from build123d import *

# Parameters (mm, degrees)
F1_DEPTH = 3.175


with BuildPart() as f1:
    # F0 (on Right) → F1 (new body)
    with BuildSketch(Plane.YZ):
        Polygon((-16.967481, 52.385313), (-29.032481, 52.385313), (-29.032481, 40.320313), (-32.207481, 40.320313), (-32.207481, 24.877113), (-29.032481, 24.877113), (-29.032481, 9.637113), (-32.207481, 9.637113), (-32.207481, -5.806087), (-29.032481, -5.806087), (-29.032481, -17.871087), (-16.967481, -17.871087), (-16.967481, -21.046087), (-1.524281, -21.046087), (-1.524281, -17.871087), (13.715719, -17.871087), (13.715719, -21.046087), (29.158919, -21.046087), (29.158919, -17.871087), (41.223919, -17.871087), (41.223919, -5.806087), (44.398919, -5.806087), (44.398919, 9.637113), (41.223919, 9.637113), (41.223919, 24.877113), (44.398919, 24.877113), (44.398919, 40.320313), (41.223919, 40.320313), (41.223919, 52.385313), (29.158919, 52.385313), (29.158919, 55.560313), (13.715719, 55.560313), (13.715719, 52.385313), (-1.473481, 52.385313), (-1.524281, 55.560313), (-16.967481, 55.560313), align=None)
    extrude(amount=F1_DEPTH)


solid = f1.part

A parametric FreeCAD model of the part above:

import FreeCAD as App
import Part
import Sketcher
Q = App.Units.Quantity


def add_polygon(sketch, points):
    """Adds a closed chain of lines whose ends are joined by coincident constraints."""
    first, n = sketch.GeometryCount, len(points)
    for a, b in zip(points, points[1:] + points[:1]):
        sketch.addGeometry(Part.LineSegment(App.Vector(*a, 0), App.Vector(*b, 0)), False)
    for i in range(n):
        sketch.addConstraint(Sketcher.Constraint("Coincident", first + i, 2, first + (i + 1) % n, 1))

doc = App.newDocument("Part")
body = doc.addObject("PartDesign::Body", "Body")

sketch1 = doc.addObject("Sketcher::SketchObject", "Sketch")
body.addObject(sketch1)
sketch1.AttachmentSupport = (doc.YZ_Plane, [""])
sketch1.MapMode = "FlatFace"
add_polygon(sketch1, [(-17, 52.4), (-29, 52.4), (-29, 40.3), (-32.2, 40.3), (-32.2, 24.9), (-29, 24.9), (-29, 9.6), (-32.2, 9.6), (-32.2, -5.8), (-29, -5.8), (-29, -17.9), (-17, -17.9), (-17, -21), (-1.5, -21), (-1.5, -17.9), (13.7, -17.9), (13.7, -21), (29.2, -21), (29.2, -17.9), (41.2, -17.9), (41.2, -5.8), (44.4, -5.8), (44.4, 9.6), (41.2, 9.6), (41.2, 24.9), (44.4, 24.9), (44.4, 40.3), (41.2, 40.3), (41.2, 52.4), (29.2, 52.4), (29.2, 55.6), (13.7, 55.6), (13.7, 52.4), (-1.5, 52.4), (-1.5, 55.6), (-17, 55.6)])
sketch1.addConstraint([
    Sketcher.Constraint("Horizontal", 0),
    Sketcher.Constraint("Vertical", 1),
    Sketcher.Constraint("Horizontal", 2),
    Sketcher.Constraint("Vertical", 3),
    Sketcher.Constraint("Horizontal", 4),
    Sketcher.Constraint("Vertical", 5),
    Sketcher.Constraint("Horizontal", 6),
    Sketcher.Constraint("Vertical", 7),
    Sketcher.Constraint("Horizontal", 8),
    Sketcher.Constraint("Vertical", 9),
    Sketcher.Constraint("Horizontal", 10),
    Sketcher.Constraint("Vertical", 11),
    Sketcher.Constraint("Horizontal", 12),
    Sketcher.Constraint("Vertical", 13),
    Sketcher.Constraint("Horizontal", 14),
    Sketcher.Constraint("Vertical", 15),
    Sketcher.Constraint("Horizontal", 16),
    Sketcher.Constraint("Vertical", 17),
    Sketcher.Constraint("Horizontal", 18),
    Sketcher.Constraint("Vertical", 19),
    Sketcher.Constraint("Horizontal", 20),
    Sketcher.Constraint("Vertical", 21),
    Sketcher.Constraint("Horizontal", 22),
    Sketcher.Constraint("Vertical", 23),
    Sketcher.Constraint("Horizontal", 24),
    Sketcher.Constraint("Vertical", 25),
    Sketcher.Constraint("Horizontal", 26),
    Sketcher.Constraint("Vertical", 27),
    Sketcher.Constraint("Horizontal", 28),
    Sketcher.Constraint("Vertical", 29),
    Sketcher.Constraint("Horizontal", 30),
    Sketcher.Constraint("Vertical", 31),
    Sketcher.Constraint("Horizontal", 32),
    Sketcher.Constraint("Horizontal", 34),
    Sketcher.Constraint("Vertical", 35),
    Sketcher.Constraint("Horizontal", 10, 2, 13, 2),
    Sketcher.Constraint("Horizontal", 12, 2, 15, 2),
    Sketcher.Constraint("Horizontal", 14, 2, 17, 2),
    Sketcher.Constraint("Horizontal", 8, 2, 19, 2),
    Sketcher.Constraint("Horizontal", 6, 2, 21, 2),
    Sketcher.Constraint("Horizontal", 4, 2, 23, 2),
    Sketcher.Constraint("Horizontal", 2, 2, 25, 2),
    Sketcher.Constraint("Horizontal", 0, 2, 27, 2),
    Sketcher.Constraint("Horizontal", 28, 2, 31, 2),
    Sketcher.Constraint("Horizontal", 30, 2, 33, 2),
    Sketcher.Constraint("Vertical", 1, 2, 4, 2),
    Sketcher.Constraint("Vertical", 3, 2, 6, 2),
    Sketcher.Constraint("Vertical", 5, 2, 8, 2),
    Sketcher.Constraint("Vertical", 19, 2, 22, 2),
    Sketcher.Constraint("Vertical", 21, 2, 24, 2),
    Sketcher.Constraint("Vertical", 23, 2, 26, 2),
    Sketcher.Constraint("Vertical", 17, 2, 28, 2),
    Sketcher.Constraint("Vertical", 15, 2, 30, 2),
    Sketcher.Constraint("Vertical", 13, 2, 33, 2),
    Sketcher.Constraint("Vertical", 11, 2, 34, 2),
    Sketcher.Constraint("Equal", 12, 16),
    Sketcher.Constraint("Equal", 10, 18),
    Sketcher.Constraint("Equal", 8, 20),
    Sketcher.Constraint("Equal", 28, 1),
    Sketcher.Constraint("Equal", 34, 3),
    Sketcher.Constraint("Equal", 14, 5),
    Sketcher.Constraint("Equal", 3, 7),
    Sketcher.Constraint("Equal", 1, 9),
    Sketcher.Constraint("Equal", 26, 11),
    Sketcher.Constraint("Equal", 17, 29),
    Sketcher.Constraint("DistanceX", 14, 1, 14, 2, Q("0.6 in")),
    Sketcher.Constraint("DistanceX", 7, 2, 10, 2, Q("0.6 in")),
    Sketcher.Constraint("DistanceX", 0, 2, 0, 1, Q("0.475 in")),
    Sketcher.Constraint("DistanceX", 12, 1, 12, 2, Q("0.608 in")),
    Sketcher.Constraint("DistanceX", 32, 2, 32, 1, Q("0.598 in")),
    Sketcher.Constraint("DistanceX", 0, 2, -1, 1, 29.032481),
    Sketcher.Constraint("DistanceY", -1, 1, 0, 2, 52.385313),
])
pad1 = doc.addObject("PartDesign::Pad", "Pad")
body.addObject(pad1)
pad1.Profile = sketch1
pad1.Length = Q("0.125 in")

doc.recompute()
